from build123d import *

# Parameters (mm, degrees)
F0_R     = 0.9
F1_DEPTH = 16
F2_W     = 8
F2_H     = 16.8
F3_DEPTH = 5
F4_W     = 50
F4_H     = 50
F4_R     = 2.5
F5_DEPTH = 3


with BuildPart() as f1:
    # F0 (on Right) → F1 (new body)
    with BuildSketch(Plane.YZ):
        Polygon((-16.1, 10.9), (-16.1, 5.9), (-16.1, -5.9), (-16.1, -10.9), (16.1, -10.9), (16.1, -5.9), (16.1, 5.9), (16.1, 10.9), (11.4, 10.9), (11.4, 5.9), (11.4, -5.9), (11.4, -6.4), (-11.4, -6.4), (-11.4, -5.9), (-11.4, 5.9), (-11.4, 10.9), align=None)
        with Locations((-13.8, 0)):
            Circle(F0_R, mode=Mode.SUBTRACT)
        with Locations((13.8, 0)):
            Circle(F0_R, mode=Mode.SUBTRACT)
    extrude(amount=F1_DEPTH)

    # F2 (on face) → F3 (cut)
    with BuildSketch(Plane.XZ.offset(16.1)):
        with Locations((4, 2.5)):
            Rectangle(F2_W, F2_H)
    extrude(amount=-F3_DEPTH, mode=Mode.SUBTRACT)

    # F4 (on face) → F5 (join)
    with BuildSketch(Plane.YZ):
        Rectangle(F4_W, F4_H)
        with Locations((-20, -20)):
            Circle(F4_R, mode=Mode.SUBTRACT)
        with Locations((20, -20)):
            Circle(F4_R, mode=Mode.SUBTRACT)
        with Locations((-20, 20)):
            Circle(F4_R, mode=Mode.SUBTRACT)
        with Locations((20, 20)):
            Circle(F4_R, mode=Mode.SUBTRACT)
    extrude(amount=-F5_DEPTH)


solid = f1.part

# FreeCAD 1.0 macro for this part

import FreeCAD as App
import Part
import Sketcher
from FreeCAD import Vector
Q = App.Units.Quantity

doc = App.newDocument("Part")
body = doc.addObject("PartDesign::Body", "Body")

# Sketch on YZ plane
sketch1 = doc.addObject("Sketcher::SketchObject", "Sketch")
body.addObject(sketch1)
sketch1.AttachmentSupport = (doc.YZ_Plane, [""])
sketch1.MapMode = "FlatFace"
sketch1.addGeometry([
    Part.LineSegment(Vector(-16.1, 10.9, 0), Vector(-16.1, -10.9, 0)),  # 0
    Part.LineSegment(Vector(-16.1, -10.9, 0), Vector(16.1, -10.9, 0)),  # 1
    Part.LineSegment(Vector(16.1, -10.9, 0), Vector(16.1, 10.9, 0)),  # 2
    Part.LineSegment(Vector(16.1, 10.9, 0), Vector(11.4, 10.9, 0)),  # 3
    Part.LineSegment(Vector(11.4, 10.9, 0), Vector(11.4, -6.4, 0)),  # 4
    Part.LineSegment(Vector(11.4, -6.4, 0), Vector(-11.4, -6.4, 0)),  # 5
    Part.LineSegment(Vector(-11.4, -6.4, 0), Vector(-11.4, 10.9, 0)),  # 6
    Part.LineSegment(Vector(-11.4, 10.9, 0), Vector(-16.1, 10.9, 0)),  # 7
    Part.Circle(Vector(-13.8, 0, 0), Vector(0, 0, 1), 0.9),  # 8
    Part.Circle(Vector(13.8, 0, 0), Vector(0, 0, 1), 0.9),  # 9
], False)
sketch1.addConstraint([
    Sketcher.Constraint("Coincident", 0, 2, 1, 1),
    Sketcher.Constraint("Coincident", 1, 2, 2, 1),
    Sketcher.Constraint("Coincident", 2, 2, 3, 1),
    Sketcher.Constraint("Coincident", 3, 2, 4, 1),
    Sketcher.Constraint("Coincident", 4, 2, 5, 1),
    Sketcher.Constraint("Coincident", 5, 2, 6, 1),
    Sketcher.Constraint("Coincident", 6, 2, 7, 1),
    Sketcher.Constraint("Coincident", 7, 2, 0, 1),
    Sketcher.Constraint("Vertical", 0),
    Sketcher.Constraint("Horizontal", 1),
    Sketcher.Constraint("Vertical", 2),
    Sketcher.Constraint("Horizontal", 3),
    Sketcher.Constraint("Vertical", 4),
    Sketcher.Constraint("Horizontal", 5),
    Sketcher.Constraint("Vertical", 6),
    Sketcher.Constraint("Horizontal", 7),
    Sketcher.Constraint("Equal", 8, 9),
    Sketcher.Constraint("Symmetric", 8, 3, 9, 3, -1, 1),
    Sketcher.Constraint("Symmetric", 0, 2, 2, 2, -1, 1),
    Sketcher.Constraint("Symmetric", 3, 2, 6, 2, -2),
    Sketcher.Constraint("PointOnObject", 8, 3, -1),
    Sketcher.Constraint("Diameter", 8, Q("1.8 mm")),
    Sketcher.Constraint("DistanceX", 1, 1, 1, 2, Q("32.2 mm")),
    Sketcher.Constraint("DistanceX", 3, 2, 3, 1, Q("4.7 mm")),
    Sketcher.Constraint("DistanceY", 0, 2, 0, 1, Q("21.8 mm")),
    Sketcher.Constraint("DistanceY", 4, 2, 4, 1, Q("17.3 mm")),
    Sketcher.Constraint("DistanceX", 8, 3, -1, 1, Q("13.8 mm")),
])
pad1 = doc.addObject("PartDesign::Pad", "Pad")
body.addObject(pad1)
pad1.Profile = sketch1
pad1.Length = 16

# Sketch on XZ plane
sketch2 = doc.addObject("Sketcher::SketchObject", "Sketch001")
body.addObject(sketch2)
sketch2.AttachmentSupport = (doc.XZ_Plane, [""])
sketch2.MapMode = "FlatFace"
sketch2.AttachmentOffset = App.Placement(Vector(0, 0, 16.1), App.Rotation())
sketch2.addGeometry([
    Part.LineSegment(Vector(0, 11, 0), Vector(0, -6, 0)),
    Part.LineSegment(Vector(0, -6, 0), Vector(8, -6, 0)),
    Part.LineSegment(Vector(8, -6, 0), Vector(8, 11, 0)),
    Part.LineSegment(Vector(8, 11, 0), Vector(0, 11, 0)),
], False)
sketch2.addConstraint([
    Sketcher.Constraint("Coincident", 0, 2, 1, 1),
    Sketcher.Constraint("Coincident", 1, 2, 2, 1),
    Sketcher.Constraint("Coincident", 2, 2, 3, 1),
    Sketcher.Constraint("Coincident", 3, 2, 0, 1),
    Sketcher.Constraint("Vertical", 0),
    Sketcher.Constraint("Horizontal", 1),
    Sketcher.Constraint("Vertical", 2),
    Sketcher.Constraint("Horizontal", 3),
    Sketcher.Constraint("PointOnObject", 0, 2, -2),
    Sketcher.Constraint("DistanceX", 1, 1, 1, 2, Q("8 mm")),
    Sketcher.Constraint("DistanceY", 0, 2, 0, 1, Q("16.8 mm")),
    Sketcher.Constraint("DistanceY", 0, 2, -1, 1, Q("5.9 mm")),
])
pocket1 = doc.addObject("PartDesign::Pocket", "Pocket")
body.addObject(pocket1)
pocket1.Profile = sketch2
pocket1.Length = 5

# Sketch on YZ plane
sketch3 = doc.addObject("Sketcher::SketchObject", "Sketch002")
body.addObject(sketch3)
sketch3.AttachmentSupport = (doc.YZ_Plane, [""])
sketch3.MapMode = "FlatFace"
sketch3.addGeometry([
    Part.LineSegment(Vector(-25, 25, 0), Vector(-25, -25, 0)),  # 0
    Part.LineSegment(Vector(-25, -25, 0), Vector(25, -25, 0)),  # 1
    Part.LineSegment(Vector(25, -25, 0), Vector(25, 25, 0)),  # 2
    Part.LineSegment(Vector(25, 25, 0), Vector(-25, 25, 0)),  # 3
    Part.Circle(Vector(-20, -20, 0), Vector(0, 0, 1), 2.5),  # 4
    Part.Circle(Vector(20, -20, 0), Vector(0, 0, 1), 2.5),  # 5
    Part.Circle(Vector(-20, 20, 0), Vector(0, 0, 1), 2.5),  # 6
    Part.Circle(Vector(20, 20, 0), Vector(0, 0, 1), 2.5),  # 7
], False)
sketch3.addConstraint([
    Sketcher.Constraint("Coincident", 0, 2, 1, 1),
    Sketcher.Constraint("Coincident", 1, 2, 2, 1),
    Sketcher.Constraint("Coincident", 2, 2, 3, 1),
    Sketcher.Constraint("Coincident", 3, 2, 0, 1),
    Sketcher.Constraint("Vertical", 0),
    Sketcher.Constraint("Horizontal", 1),
    Sketcher.Constraint("Vertical", 2),
    Sketcher.Constraint("Horizontal", 3),
    Sketcher.Constraint("Equal", 4, 5),
    Sketcher.Constraint("Equal", 5, 6),
    Sketcher.Constraint("Equal", 6, 7),
    Sketcher.Constraint("Symmetric", 5, 3, 6, 3, -1, 1),
    Sketcher.Constraint("Symmetric", 4, 3, 7, 3, -1, 1),
    Sketcher.Constraint("Symmetric", 0, 2, 2, 2, -1, 1),
    Sketcher.Constraint("Symmetric", 4, 3, 5, 3, -2),
    Sketcher.Constraint("Equal", 3, 0),
    Sketcher.Constraint("Diameter", 4, Q("5 mm")),
    Sketcher.Constraint("DistanceX", 1, 1, 1, 2, Q("50 mm")),
    Sketcher.Constraint("DistanceX", 4, 3, -1, 1, Q("20 mm")),
    Sketcher.Constraint("DistanceY", 4, 3, -1, 1, Q("20 mm")),
])
pad2 = doc.addObject("PartDesign::Pad", "Pad001")
body.addObject(pad2)
pad2.Profile = sketch3
pad2.Length = 3
pad2.Reversed = True

doc.recompute()
